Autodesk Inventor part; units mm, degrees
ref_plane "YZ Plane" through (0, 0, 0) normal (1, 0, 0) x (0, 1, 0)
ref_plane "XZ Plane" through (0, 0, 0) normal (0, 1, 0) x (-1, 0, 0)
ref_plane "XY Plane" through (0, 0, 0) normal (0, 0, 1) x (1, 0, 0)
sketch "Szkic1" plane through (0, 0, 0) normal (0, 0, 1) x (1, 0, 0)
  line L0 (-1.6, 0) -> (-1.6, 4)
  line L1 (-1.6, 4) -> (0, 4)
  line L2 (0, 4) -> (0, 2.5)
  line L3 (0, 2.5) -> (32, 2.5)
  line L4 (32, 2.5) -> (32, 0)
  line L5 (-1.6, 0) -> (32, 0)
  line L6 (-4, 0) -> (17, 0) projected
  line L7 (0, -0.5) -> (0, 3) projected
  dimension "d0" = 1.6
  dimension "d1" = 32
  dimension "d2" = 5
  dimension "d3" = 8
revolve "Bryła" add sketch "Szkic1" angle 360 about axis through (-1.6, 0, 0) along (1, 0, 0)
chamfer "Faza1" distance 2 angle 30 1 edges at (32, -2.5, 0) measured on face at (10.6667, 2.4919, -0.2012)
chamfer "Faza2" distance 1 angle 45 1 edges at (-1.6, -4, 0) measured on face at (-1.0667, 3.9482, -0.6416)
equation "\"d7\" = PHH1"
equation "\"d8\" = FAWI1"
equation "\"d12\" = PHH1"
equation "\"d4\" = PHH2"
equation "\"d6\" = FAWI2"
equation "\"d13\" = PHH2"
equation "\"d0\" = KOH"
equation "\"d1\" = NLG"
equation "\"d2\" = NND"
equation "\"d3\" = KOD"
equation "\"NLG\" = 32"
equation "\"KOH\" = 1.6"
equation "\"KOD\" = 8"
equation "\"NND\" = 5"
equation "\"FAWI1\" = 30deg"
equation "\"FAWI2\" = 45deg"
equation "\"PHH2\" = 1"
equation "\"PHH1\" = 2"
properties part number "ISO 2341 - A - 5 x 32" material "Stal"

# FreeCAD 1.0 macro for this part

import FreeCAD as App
import Part
import Sketcher
Q = App.Units.Quantity


def edges_at(feature, points):
    """Names of the edges that pass closest to the given points."""
    edges = feature.Shape.Edges
    near = lambda p: min(range(len(edges)), key=lambda i: edges[i].distToShape(Part.Vertex(*p))[0])
    return sorted({f"Edge{near(p) + 1}" for p in points})

doc = App.newDocument("Part")
params = doc.addObject("Spreadsheet::Sheet", "Params")
for row, (alias, value) in enumerate([
    ("sketch1_width", "32 mm"),
    ("sketch1_width2", "1.6 mm"),
    ("sketch1_height", "4 mm"),
    ("sketch1_height2", "2.5 mm"),
    ("revolution_angle", "360 deg"),
    ("chamfer_size", "2 mm"),
    ("chamfer2_size", "1 mm"),
], start=1):
    params.set(f"A{row}", alias)
    params.set(f"B{row}", "=" + value)
    params.setAlias(f"B{row}", alias)

body = doc.addObject("PartDesign::Body", "Body")

# Sketch on XY plane
sketch1 = doc.addObject("Sketcher::SketchObject", "Sketch")
body.addObject(sketch1)
sketch1.AttachmentSupport = (doc.XY_Plane, [""])
sketch1.MapMode = "FlatFace"
sketch1.addGeometry(Part.LineSegment(App.Vector(-1.6, 4, 0), App.Vector(-1.6, 0, 0)), False)
sketch1.addGeometry(Part.LineSegment(App.Vector(-1.6, 0, 0), App.Vector(32, 0, 0)), False)
sketch1.addGeometry(Part.LineSegment(App.Vector(32, 0, 0), App.Vector(32, 2.5, 0)), False)
sketch1.addGeometry(Part.LineSegment(App.Vector(32, 2.5, 0), App.Vector(0, 2.5, 0)), False)
sketch1.addGeometry(Part.LineSegment(App.Vector(0, 2.5, 0), App.Vector(0, 4, 0)), False)
sketch1.addGeometry(Part.LineSegment(App.Vector(0, 4, 0), App.Vector(-1.6, 4, 0)), False)
sketch1.addConstraint(Sketcher.Constraint("Coincident", 0, 2, 1, 1))
sketch1.addConstraint(Sketcher.Constraint("Coincident", 1, 2, 2, 1))
sketch1.addConstraint(Sketcher.Constraint("Coincident", 2, 2, 3, 1))
sketch1.addConstraint(Sketcher.Constraint("Coincident", 3, 2, 4, 1))
sketch1.addConstraint(Sketcher.Constraint("Coincident", 4, 2, 5, 1))
sketch1.addConstraint(Sketcher.Constraint("Coincident", 5, 2, 0, 1))
sketch1.addConstraint(Sketcher.Constraint("Vertical", 0))
sketch1.addConstraint(Sketcher.Constraint("Horizontal", 1))
sketch1.addConstraint(Sketcher.Constraint("Vertical", 2))
sketch1.addConstraint(Sketcher.Constraint("Horizontal", 3))
sketch1.addConstraint(Sketcher.Constraint("Vertical", 4))
sketch1.addConstraint(Sketcher.Constraint("Horizontal", 5))
sketch1.addConstraint(Sketcher.Constraint("PointOnObject", 0, 2, -1))
sketch1.addConstraint(Sketcher.Constraint("PointOnObject", 3, 2, -2))
sketch1.addConstraint(Sketcher.Constraint("DistanceX", 3, 2, 3, 1, Q("32 mm")))
sketch1.addConstraint(Sketcher.Constraint("DistanceX", 5, 2, 5, 1, Q("1.6 mm")))
sketch1.addConstraint(Sketcher.Constraint("DistanceY", 0, 2, 0, 1, Q("4 mm")))
sketch1.addConstraint(Sketcher.Constraint("DistanceY", 2, 1, 2, 2, Q("2.5 mm")))
sketch1.setExpression("Constraints[14]", "Params.sketch1_width")
sketch1.setExpression("Constraints[15]", "Params.sketch1_width2")
sketch1.setExpression("Constraints[16]", "Params.sketch1_height")
sketch1.setExpression("Constraints[17]", "Params.sketch1_height2")
revolution = doc.addObject("PartDesign::Revolution", "Revolution")
body.addObject(revolution)
revolution.Profile = sketch1
revolution.ReferenceAxis = (sketch1, ["H_Axis"])
revolution.setExpression("Angle", "Params.revolution_angle")
doc.recompute()

chamfer = doc.addObject("PartDesign::Chamfer", "Chamfer")
body.addObject(chamfer)
chamfer.Base = (revolution, edges_at(revolution, [(32, -2.5, 0)]))
chamfer.ChamferType = "Distance and Angle"
chamfer.setExpression("Size", "Params.chamfer_size")
chamfer.Angle = 30
chamfer.FlipDirection = True
doc.recompute()

chamfer2 = doc.addObject("PartDesign::Chamfer", "Chamfer001")
body.addObject(chamfer2)
chamfer2.Base = (chamfer, edges_at(chamfer, [(-1.6, -4, 0)]))
chamfer2.setExpression("Size", "Params.chamfer2_size")

doc.recompute()
